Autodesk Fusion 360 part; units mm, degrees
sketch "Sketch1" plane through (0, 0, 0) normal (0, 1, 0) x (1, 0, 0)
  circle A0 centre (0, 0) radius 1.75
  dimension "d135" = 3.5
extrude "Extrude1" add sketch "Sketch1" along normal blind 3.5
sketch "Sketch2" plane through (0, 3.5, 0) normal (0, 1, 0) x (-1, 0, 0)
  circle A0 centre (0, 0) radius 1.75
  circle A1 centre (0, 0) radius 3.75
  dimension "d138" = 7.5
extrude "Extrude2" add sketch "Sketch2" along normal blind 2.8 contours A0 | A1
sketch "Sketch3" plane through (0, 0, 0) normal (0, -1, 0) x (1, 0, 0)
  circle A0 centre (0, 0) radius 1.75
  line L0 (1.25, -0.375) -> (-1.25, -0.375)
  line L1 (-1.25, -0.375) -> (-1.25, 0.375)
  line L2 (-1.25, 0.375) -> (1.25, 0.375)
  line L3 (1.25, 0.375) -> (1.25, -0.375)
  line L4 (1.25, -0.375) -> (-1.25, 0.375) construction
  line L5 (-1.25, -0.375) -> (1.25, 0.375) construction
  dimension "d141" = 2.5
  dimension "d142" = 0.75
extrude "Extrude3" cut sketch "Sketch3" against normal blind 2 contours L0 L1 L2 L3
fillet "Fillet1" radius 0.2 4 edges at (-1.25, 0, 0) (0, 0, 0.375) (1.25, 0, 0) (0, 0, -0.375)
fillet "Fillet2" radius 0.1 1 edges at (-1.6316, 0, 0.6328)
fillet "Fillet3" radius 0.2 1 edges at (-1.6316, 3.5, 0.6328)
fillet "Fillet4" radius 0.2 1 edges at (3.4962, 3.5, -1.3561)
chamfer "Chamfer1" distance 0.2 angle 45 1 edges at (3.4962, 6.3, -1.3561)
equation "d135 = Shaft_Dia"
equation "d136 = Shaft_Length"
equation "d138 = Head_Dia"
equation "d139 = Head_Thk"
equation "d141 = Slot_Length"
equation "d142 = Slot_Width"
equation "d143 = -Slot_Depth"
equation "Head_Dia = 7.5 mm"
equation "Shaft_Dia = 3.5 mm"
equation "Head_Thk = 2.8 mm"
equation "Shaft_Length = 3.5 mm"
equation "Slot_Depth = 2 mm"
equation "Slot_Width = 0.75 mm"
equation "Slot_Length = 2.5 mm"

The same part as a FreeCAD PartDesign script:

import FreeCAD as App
import Part
import Sketcher
from FreeCAD import Vector
Q = App.Units.Quantity


def edges_at(feature, points):
    """Names of the edges that pass closest to the given points."""
    edges = feature.Shape.Edges
    near = lambda p: min(range(len(edges)), key=lambda i: edges[i].distToShape(Part.Vertex(*p))[0])
    return sorted({f"Edge{near(p) + 1}" for p in points})


def add_polygon(sketch, points):
    """Adds a closed chain of lines whose ends are joined by coincident constraints."""
    first, n = sketch.GeometryCount, len(points)
    for a, b in zip(points, points[1:] + points[:1]):
        sketch.addGeometry(Part.LineSegment(App.Vector(*a, 0), App.Vector(*b, 0)), False)
    for i in range(n):
        sketch.addConstraint(Sketcher.Constraint("Coincident", first + i, 2, first + (i + 1) % n, 1))

doc = App.newDocument("Part")
params = doc.addObject("Spreadsheet::Sheet", "Params")
for row, (alias, value) in enumerate([
    ("sketch1_diameter", "3.5 mm"),
    ("pad1_length", "3.5 mm"),
    ("sketch2_diameter", "7.5 mm"),
    ("pad2_length", "2.8 mm"),
    ("sketch3_width", "2.5 mm"),
    ("sketch3_height", "0.75 mm"),
    ("pocket1_length", "2 mm"),
    ("fillet_radius", "0.2 mm"),
    ("fillet2_radius", "0.1 mm"),
    ("fillet3_radius", "0.2 mm"),
    ("fillet4_radius", "0.2 mm"),
    ("chamfer_size", "0.2 mm"),
], start=1):
    params.set(f"A{row}", alias)
    params.set(f"B{row}", "=" + value)
    params.setAlias(f"B{row}", alias)

body = doc.addObject("PartDesign::Body", "Body")

sketch1 = body.newObject("Sketcher::SketchObject", "Sketch")
sketch1.AttachmentSupport = (doc.getObject("XZ_Plane"), [""])
sketch1.MapMode = "FlatFace"
sketch1.addGeometry(Part.Circle(Vector(0, 0, 0), Vector(0, 0, 1), 1.8), False)
sketch1.addConstraint(Sketcher.Constraint("Coincident", 0, 3, -1, 1))
sketch1.addConstraint(Sketcher.Constraint("Diameter", 0, Q("3.5 mm")))
sketch1.setExpression("Constraints[1]", "Params.sketch1_diameter")
pad1 = body.newObject("PartDesign::Pad", "Pad")
pad1.Profile = sketch1
pad1.setExpression("Length", "Params.pad1_length")
pad1.Reversed = True

sketch2 = body.newObject("Sketcher::SketchObject", "Sketch001")
sketch2.AttachmentSupport = (doc.getObject("XZ_Plane"), [""])
sketch2.MapMode = "FlatFace"
sketch2.AttachmentOffset = App.Placement(Vector(0, 0, -3.5), App.Rotation())
sketch2.addGeometry(Part.Circle(Vector(0, 0, 0), Vector(0, 0, 1), 3.8), False)
sketch2.addConstraint(Sketcher.Constraint("Coincident", 0, 3, -1, 1))
sketch2.addConstraint(Sketcher.Constraint("Diameter", 0, Q("7.5 mm")))
sketch2.setExpression("Constraints[1]", "Params.sketch2_diameter")
pad2 = body.newObject("PartDesign::Pad", "Pad001")
pad2.Profile = sketch2
pad2.setExpression("Length", "Params.pad2_length")
pad2.Reversed = True

sketch3 = body.newObject("Sketcher::SketchObject", "Sketch002")
sketch3.AttachmentSupport = (doc.getObject("XZ_Plane"), [""])
sketch3.MapMode = "FlatFace"
add_polygon(sketch3, [(-1.2, -0.4), (1.2, -0.4), (1.2, 0.4), (-1.2, 0.4)])
sketch3.addConstraint(Sketcher.Constraint("Horizontal", 0))
sketch3.addConstraint(Sketcher.Constraint("Vertical", 1))
sketch3.addConstraint(Sketcher.Constraint("Horizontal", 2))
sketch3.addConstraint(Sketcher.Constraint("Vertical", 3))
sketch3.addConstraint(Sketcher.Constraint("Symmetric", 0, 2, 2, 2, -1, 1))
sketch3.addConstraint(Sketcher.Constraint("DistanceX", 0, 1, 0, 2, Q("2.5 mm")))
sketch3.addConstraint(Sketcher.Constraint("DistanceY", 1, 1, 1, 2, Q("0.75 mm")))
sketch3.setExpression("Constraints[9]", "Params.sketch3_width")
sketch3.setExpression("Constraints[10]", "Params.sketch3_height")
pocket1 = body.newObject("PartDesign::Pocket", "Pocket")
pocket1.Profile = sketch3
pocket1.setExpression("Length", "Params.pocket1_length")
doc.recompute()

fillet = body.newObject("PartDesign::Fillet", "Fillet")
fillet.Base = (pocket1, edges_at(pocket1, [
    (-1.25, 0, 0),
    (0, 0, 0.375),
    (1.25, 0, 0),
    (0, 0, -0.375),
]))
fillet.setExpression("Radius", "Params.fillet_radius")
doc.recompute()

fillet2 = body.newObject("PartDesign::Fillet", "Fillet001")
fillet2.Base = (fillet, edges_at(fillet, [(-1.632, 0, 0.633)]))
fillet2.setExpression("Radius", "Params.fillet2_radius")
doc.recompute()

fillet3 = body.newObject("PartDesign::Fillet", "Fillet002")
fillet3.Base = (fillet2, edges_at(fillet2, [(-1.632, 3.5, 0.633)]))
fillet3.setExpression("Radius", "Params.fillet3_radius")
doc.recompute()

fillet4 = body.newObject("PartDesign::Fillet", "Fillet003")
fillet4.Base = (fillet3, edges_at(fillet3, [(3.496, 3.5, -1.356)]))
fillet4.setExpression("Radius", "Params.fillet4_radius")
doc.recompute()

chamfer = body.newObject("PartDesign::Chamfer", "Chamfer")
chamfer.Base = (fillet4, edges_at(fillet4, [(3.496, 6.3, -1.356)]))
chamfer.setExpression("Size", "Params.chamfer_size")

doc.recompute()
